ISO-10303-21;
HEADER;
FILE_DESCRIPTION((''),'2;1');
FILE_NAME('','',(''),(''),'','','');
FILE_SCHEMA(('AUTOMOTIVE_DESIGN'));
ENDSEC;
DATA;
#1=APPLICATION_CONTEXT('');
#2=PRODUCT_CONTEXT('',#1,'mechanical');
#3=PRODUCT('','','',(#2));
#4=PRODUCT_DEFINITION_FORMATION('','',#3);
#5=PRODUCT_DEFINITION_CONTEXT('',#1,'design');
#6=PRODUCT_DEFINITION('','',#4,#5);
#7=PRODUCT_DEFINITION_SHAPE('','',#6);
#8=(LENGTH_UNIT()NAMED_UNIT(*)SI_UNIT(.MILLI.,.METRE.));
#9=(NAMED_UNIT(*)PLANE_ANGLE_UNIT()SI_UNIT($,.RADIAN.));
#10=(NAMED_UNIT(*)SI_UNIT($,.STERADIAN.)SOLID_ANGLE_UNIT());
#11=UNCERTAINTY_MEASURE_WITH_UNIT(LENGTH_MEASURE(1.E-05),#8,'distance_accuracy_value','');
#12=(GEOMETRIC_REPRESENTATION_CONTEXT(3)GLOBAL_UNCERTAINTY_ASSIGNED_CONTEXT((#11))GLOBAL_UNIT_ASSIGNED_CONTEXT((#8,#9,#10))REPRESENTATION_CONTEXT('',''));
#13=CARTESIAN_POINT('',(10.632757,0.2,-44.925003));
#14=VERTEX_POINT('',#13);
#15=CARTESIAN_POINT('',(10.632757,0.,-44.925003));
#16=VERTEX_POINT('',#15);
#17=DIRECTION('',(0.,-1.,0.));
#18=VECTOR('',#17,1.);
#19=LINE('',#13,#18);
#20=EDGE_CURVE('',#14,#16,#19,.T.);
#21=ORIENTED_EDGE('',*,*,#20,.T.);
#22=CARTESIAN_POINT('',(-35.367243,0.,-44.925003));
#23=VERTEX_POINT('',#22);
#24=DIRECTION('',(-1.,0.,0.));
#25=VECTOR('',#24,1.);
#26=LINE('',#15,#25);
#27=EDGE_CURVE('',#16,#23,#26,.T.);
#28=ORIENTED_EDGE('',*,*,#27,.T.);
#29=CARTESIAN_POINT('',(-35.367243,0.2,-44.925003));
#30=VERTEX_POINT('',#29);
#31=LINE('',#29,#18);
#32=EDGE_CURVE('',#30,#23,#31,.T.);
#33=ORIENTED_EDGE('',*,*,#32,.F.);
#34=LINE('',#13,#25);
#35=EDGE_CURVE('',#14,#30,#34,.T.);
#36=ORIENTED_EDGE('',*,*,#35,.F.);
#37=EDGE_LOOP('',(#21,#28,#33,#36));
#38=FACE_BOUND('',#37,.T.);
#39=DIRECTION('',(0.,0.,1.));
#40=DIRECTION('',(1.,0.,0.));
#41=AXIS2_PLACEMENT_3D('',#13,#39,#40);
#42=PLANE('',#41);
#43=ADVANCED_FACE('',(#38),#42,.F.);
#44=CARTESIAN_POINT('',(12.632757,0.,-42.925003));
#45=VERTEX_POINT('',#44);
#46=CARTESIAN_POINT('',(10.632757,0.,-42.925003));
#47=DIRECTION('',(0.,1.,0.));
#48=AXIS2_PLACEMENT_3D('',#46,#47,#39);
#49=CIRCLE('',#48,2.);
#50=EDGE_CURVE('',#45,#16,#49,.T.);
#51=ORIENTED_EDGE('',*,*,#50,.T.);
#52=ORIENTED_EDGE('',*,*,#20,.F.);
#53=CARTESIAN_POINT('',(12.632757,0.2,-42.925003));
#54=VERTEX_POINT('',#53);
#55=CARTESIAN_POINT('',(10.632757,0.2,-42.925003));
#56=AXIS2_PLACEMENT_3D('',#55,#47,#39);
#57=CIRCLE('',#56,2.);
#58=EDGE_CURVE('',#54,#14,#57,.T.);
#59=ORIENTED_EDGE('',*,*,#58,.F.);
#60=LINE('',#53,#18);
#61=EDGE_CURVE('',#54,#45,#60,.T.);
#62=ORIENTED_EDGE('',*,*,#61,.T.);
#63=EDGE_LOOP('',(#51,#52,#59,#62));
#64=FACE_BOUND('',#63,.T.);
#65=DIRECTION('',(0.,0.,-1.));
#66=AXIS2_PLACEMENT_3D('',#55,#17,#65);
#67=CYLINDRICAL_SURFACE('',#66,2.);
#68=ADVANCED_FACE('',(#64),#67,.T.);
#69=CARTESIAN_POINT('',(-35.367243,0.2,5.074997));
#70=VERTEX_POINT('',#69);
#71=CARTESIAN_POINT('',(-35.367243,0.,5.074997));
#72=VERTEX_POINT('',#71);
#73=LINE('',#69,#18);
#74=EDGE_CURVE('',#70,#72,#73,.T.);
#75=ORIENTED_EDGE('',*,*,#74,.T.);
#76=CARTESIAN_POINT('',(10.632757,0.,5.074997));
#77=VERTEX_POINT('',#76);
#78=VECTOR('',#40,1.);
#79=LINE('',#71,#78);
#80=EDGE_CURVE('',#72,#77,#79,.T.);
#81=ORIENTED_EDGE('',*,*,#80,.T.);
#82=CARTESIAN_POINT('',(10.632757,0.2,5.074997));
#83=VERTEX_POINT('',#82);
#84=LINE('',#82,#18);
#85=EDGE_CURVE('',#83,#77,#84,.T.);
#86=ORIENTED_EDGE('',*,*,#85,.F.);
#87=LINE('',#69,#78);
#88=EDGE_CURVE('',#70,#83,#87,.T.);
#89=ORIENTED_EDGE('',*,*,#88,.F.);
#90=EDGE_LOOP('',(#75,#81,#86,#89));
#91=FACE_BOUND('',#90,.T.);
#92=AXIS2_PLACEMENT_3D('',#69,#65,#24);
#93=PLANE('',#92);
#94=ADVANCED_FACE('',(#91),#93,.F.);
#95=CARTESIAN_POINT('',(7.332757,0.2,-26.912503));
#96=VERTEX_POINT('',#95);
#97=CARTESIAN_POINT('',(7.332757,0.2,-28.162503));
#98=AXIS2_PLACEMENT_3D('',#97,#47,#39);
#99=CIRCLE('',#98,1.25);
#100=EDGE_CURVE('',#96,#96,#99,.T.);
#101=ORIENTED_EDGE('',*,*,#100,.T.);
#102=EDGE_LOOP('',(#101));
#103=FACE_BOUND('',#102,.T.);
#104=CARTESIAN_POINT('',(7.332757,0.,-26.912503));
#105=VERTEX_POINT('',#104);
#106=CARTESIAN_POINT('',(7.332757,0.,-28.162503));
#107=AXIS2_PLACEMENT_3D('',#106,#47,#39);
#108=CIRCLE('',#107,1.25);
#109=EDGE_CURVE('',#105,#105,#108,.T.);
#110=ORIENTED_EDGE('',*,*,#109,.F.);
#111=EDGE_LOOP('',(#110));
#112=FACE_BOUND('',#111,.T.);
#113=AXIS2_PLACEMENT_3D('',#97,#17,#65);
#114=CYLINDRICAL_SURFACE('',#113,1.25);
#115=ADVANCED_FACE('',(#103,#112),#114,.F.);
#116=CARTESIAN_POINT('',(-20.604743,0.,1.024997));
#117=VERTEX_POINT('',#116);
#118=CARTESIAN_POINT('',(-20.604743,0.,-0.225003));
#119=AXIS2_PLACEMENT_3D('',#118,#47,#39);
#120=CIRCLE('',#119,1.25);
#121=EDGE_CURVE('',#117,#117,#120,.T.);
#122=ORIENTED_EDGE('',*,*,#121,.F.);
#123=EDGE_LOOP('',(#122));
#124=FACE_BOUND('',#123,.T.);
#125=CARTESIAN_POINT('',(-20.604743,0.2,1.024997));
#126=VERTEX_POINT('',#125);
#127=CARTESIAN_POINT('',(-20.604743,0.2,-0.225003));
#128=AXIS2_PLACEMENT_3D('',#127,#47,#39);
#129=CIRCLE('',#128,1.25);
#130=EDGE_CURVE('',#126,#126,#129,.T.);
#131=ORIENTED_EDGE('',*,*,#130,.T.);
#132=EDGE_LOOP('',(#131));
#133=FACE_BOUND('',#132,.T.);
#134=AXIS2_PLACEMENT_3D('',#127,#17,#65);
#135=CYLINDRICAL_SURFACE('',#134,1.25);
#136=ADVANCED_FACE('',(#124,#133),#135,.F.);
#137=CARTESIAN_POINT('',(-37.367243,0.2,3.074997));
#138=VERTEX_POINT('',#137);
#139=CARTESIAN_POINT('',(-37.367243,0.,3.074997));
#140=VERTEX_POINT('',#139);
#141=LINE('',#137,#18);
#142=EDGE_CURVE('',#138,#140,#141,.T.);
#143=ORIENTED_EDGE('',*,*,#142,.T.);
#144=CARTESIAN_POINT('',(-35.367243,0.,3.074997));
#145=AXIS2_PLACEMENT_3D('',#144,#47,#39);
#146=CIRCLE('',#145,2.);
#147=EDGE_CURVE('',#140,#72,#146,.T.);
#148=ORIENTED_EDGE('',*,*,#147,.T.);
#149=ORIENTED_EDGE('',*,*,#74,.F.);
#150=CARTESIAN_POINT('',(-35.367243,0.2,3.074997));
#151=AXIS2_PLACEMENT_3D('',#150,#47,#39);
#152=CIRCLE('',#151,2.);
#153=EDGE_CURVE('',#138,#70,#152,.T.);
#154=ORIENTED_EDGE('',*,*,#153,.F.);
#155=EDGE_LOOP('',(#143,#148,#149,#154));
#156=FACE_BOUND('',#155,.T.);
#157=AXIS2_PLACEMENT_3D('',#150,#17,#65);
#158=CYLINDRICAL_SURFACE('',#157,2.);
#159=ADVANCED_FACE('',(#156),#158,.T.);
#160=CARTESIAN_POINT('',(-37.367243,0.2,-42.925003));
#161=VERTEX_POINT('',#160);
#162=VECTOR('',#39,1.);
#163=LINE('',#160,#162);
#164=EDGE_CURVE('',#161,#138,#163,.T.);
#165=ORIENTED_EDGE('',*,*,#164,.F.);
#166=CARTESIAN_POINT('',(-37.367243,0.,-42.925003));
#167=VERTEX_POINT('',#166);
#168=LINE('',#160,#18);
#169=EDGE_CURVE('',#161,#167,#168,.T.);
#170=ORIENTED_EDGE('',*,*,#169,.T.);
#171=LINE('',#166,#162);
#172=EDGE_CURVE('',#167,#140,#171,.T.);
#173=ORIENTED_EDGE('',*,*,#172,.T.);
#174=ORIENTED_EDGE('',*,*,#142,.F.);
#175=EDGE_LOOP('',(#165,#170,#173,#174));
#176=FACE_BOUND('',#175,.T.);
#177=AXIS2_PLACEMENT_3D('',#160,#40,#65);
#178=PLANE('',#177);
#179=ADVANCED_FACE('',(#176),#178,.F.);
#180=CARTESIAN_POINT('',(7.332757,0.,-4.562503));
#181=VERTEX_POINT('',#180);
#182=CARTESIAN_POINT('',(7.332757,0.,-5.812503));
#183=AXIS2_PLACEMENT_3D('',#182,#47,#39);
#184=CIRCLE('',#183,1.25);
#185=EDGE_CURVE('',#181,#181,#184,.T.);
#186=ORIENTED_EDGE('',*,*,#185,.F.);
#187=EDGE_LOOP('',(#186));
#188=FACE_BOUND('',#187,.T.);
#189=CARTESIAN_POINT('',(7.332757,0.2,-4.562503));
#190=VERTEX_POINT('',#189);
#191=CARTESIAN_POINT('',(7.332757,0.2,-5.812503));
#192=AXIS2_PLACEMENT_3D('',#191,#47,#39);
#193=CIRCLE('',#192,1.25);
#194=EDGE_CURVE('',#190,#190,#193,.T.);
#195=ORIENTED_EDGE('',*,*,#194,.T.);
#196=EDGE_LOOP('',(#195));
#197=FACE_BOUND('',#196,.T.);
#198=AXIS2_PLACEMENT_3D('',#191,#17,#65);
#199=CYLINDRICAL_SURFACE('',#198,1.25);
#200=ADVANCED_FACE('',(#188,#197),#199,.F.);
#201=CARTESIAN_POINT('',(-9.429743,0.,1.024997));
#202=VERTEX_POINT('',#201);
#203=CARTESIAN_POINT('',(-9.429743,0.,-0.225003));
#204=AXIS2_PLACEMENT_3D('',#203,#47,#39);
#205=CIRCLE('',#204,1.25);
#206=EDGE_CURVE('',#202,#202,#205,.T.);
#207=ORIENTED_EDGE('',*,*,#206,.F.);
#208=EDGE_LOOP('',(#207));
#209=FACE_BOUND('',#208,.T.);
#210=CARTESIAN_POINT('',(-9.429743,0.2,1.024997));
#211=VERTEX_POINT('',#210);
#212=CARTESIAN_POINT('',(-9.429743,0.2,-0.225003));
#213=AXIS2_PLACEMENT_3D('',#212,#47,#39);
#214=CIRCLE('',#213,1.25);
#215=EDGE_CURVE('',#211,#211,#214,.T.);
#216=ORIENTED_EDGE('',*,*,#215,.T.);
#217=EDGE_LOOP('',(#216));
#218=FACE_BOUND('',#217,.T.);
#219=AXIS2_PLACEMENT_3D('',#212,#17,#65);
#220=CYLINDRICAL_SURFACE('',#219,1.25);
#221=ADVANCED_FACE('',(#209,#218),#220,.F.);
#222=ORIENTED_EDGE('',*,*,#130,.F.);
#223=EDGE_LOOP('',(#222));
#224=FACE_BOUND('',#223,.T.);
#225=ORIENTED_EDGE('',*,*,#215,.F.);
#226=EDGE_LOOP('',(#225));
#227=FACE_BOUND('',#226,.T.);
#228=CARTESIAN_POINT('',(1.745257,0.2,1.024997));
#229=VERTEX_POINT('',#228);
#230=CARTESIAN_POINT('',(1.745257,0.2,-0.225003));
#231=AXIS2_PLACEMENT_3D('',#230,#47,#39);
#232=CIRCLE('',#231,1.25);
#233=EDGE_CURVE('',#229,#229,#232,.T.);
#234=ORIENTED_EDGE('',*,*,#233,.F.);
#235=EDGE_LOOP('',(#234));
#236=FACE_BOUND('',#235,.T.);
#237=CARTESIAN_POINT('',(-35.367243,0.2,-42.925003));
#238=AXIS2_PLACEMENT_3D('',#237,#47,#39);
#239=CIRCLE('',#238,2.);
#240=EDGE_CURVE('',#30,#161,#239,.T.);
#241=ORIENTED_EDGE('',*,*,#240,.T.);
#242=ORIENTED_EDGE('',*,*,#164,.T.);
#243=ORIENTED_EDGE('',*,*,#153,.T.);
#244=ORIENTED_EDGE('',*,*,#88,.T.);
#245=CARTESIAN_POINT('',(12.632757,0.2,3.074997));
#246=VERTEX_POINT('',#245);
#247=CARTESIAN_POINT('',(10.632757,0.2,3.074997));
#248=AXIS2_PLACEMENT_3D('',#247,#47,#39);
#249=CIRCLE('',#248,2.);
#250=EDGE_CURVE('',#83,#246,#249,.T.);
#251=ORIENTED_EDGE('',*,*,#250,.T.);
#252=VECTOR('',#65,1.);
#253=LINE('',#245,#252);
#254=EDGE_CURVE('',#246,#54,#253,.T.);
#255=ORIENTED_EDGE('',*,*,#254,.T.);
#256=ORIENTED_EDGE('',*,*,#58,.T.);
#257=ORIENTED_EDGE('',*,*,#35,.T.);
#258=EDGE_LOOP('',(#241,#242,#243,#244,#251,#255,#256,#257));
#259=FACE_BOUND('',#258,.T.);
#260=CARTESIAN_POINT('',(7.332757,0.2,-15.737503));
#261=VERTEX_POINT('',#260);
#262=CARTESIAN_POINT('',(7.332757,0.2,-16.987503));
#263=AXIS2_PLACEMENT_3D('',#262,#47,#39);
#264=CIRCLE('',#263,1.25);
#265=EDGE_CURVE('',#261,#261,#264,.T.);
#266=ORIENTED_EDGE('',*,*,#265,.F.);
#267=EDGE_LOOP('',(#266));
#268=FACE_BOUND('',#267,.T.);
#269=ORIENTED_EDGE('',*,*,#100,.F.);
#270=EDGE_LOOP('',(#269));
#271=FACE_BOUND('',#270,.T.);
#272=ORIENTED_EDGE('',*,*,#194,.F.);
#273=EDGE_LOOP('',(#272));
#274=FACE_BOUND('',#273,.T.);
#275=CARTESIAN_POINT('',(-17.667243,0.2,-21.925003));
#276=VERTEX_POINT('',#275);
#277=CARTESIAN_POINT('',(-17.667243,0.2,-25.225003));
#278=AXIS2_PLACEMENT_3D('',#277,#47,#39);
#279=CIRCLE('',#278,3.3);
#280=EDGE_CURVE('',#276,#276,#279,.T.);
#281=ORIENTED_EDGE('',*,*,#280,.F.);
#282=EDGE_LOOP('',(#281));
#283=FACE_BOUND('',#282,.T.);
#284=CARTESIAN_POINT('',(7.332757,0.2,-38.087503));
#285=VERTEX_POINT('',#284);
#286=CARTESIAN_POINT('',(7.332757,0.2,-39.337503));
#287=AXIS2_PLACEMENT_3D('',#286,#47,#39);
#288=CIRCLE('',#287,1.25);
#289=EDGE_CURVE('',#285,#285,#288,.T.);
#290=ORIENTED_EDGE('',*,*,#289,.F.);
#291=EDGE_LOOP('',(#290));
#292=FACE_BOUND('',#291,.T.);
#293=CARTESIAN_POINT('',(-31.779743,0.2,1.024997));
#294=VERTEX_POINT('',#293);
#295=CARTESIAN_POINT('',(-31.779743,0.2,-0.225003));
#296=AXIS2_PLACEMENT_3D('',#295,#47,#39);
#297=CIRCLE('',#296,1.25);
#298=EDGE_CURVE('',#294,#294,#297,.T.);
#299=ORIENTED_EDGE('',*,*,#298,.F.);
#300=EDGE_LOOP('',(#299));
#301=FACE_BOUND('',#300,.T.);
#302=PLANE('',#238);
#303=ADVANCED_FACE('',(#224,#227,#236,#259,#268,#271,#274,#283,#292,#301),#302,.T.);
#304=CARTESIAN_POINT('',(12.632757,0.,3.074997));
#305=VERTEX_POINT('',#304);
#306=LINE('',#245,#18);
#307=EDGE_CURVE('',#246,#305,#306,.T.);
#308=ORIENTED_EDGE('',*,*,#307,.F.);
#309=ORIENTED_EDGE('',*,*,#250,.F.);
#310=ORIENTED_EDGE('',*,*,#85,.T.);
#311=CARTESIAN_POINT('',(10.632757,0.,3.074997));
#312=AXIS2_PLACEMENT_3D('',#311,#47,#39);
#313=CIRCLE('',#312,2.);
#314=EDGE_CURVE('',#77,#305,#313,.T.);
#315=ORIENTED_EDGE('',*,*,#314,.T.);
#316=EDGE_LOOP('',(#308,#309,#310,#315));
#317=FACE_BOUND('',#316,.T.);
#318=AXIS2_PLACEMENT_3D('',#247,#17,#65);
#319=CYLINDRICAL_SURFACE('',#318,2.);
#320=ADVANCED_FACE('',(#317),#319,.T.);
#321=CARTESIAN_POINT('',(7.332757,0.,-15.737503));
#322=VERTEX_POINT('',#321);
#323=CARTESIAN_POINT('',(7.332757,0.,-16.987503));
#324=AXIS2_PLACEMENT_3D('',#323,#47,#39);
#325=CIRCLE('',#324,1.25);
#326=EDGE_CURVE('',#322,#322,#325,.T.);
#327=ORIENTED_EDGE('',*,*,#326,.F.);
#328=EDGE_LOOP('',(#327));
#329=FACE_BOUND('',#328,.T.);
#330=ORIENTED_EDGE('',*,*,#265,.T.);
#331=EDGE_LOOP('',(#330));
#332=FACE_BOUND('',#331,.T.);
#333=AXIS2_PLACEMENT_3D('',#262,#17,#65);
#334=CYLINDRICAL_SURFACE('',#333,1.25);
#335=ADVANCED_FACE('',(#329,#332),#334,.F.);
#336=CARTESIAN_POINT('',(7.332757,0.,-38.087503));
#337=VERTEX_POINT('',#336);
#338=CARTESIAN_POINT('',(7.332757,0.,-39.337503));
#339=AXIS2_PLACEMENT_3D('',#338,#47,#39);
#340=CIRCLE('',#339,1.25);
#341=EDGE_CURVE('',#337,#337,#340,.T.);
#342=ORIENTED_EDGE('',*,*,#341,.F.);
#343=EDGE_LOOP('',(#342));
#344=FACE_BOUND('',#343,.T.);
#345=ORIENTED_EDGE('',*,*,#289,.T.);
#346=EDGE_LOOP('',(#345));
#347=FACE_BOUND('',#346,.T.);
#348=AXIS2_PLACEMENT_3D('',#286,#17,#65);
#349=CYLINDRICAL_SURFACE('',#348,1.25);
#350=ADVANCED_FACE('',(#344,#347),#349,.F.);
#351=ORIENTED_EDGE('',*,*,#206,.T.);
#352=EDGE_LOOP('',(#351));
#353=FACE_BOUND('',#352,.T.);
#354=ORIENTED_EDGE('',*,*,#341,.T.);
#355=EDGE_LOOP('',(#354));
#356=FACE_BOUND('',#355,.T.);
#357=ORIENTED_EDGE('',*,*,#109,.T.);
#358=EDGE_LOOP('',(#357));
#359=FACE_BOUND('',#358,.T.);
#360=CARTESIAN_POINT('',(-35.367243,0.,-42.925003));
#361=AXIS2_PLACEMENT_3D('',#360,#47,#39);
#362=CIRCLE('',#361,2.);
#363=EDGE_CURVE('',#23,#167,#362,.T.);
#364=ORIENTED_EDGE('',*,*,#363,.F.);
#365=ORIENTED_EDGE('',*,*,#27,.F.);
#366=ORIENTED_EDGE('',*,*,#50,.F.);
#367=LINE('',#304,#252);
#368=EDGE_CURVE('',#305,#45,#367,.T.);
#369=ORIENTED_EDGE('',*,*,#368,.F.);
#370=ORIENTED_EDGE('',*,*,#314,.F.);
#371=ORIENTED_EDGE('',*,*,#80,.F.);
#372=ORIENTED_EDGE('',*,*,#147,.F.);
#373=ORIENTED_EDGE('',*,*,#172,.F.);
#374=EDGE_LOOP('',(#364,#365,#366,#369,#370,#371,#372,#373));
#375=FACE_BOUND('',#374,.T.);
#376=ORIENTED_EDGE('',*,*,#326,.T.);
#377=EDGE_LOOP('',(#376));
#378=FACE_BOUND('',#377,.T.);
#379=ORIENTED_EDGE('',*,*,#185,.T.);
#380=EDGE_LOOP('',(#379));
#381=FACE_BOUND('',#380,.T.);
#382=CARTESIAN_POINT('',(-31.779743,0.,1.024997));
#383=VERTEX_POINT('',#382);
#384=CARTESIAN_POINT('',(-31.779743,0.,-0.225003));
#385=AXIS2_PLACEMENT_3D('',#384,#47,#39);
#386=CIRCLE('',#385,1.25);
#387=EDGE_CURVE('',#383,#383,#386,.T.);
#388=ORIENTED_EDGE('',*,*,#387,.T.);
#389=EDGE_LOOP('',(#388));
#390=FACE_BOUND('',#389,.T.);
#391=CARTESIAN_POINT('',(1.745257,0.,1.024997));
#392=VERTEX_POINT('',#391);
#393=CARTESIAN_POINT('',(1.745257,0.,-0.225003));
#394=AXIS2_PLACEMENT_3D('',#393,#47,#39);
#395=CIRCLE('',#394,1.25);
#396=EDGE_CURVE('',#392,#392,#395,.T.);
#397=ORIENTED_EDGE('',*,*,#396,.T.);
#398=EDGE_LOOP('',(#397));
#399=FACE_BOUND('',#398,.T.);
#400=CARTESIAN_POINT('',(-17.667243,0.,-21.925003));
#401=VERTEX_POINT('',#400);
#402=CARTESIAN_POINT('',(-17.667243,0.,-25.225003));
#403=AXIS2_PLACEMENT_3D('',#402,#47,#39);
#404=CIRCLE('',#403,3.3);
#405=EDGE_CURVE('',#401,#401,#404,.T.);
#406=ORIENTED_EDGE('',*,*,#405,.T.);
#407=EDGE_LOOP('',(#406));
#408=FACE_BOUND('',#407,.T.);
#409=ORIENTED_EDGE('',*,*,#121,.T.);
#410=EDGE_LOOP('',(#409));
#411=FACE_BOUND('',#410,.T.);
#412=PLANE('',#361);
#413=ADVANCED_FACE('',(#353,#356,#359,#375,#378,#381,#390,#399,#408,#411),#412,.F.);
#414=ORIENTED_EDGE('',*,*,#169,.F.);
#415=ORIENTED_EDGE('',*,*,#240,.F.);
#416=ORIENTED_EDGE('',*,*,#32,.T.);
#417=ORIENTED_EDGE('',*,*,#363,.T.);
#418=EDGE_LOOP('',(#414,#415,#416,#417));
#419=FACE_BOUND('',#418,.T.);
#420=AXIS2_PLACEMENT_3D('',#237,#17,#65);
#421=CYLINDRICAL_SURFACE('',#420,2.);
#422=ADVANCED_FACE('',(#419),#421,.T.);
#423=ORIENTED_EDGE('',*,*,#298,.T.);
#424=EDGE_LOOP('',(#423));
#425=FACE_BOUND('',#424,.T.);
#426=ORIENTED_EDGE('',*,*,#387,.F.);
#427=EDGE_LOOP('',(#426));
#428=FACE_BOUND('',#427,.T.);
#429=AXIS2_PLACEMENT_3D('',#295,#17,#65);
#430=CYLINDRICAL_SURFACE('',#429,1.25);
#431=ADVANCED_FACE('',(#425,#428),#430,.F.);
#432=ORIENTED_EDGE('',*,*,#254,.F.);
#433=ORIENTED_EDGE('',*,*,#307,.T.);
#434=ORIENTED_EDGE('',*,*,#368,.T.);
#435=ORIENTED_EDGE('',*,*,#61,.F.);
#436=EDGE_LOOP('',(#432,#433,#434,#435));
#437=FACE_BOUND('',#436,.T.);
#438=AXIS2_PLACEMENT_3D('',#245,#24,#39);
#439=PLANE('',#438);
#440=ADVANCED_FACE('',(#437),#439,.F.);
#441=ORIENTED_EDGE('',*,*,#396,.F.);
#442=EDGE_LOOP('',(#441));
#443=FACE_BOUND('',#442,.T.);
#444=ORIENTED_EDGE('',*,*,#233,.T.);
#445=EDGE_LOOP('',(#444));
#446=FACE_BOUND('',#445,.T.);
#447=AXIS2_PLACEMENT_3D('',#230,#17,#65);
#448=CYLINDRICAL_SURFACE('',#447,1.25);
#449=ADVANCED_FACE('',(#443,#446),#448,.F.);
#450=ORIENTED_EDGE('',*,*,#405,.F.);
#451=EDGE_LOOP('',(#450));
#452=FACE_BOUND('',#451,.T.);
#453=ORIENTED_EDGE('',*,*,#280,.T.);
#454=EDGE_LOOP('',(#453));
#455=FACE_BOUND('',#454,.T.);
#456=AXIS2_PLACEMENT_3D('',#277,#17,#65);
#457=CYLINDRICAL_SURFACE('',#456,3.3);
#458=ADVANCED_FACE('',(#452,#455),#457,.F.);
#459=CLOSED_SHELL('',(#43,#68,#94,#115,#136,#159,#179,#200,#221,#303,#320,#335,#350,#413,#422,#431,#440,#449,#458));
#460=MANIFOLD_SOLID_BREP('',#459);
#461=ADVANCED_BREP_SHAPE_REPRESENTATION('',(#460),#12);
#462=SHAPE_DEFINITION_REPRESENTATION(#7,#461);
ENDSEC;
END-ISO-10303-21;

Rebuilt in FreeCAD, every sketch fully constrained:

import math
import FreeCAD as App
import Part
import Sketcher
Q = App.Units.Quantity

doc = App.newDocument("Part")
body = doc.addObject("PartDesign::Body", "Body")

# Sketch on XZ plane
sketch1 = doc.addObject("Sketcher::SketchObject", "Sketch")
body.addObject(sketch1)
sketch1.AttachmentSupport = (doc.XZ_Plane, [""])
sketch1.MapMode = "FlatFace"
sketch1.addGeometry([
    Part.LineSegment(App.Vector(-37.367243, -42.925003, 0), App.Vector(-37.367243, 3.074997, 0)),  # 0
    Part.ArcOfCircle(Part.Circle(App.Vector(-35.367243, 3.074997, 0), App.Vector(0, 0, 1), 2), math.radians(90), math.radians(180)),  # 1
    Part.LineSegment(App.Vector(-35.367243, 5.074997, 0), App.Vector(10.632757, 5.074997, 0)),  # 2
    Part.ArcOfCircle(Part.Circle(App.Vector(10.632757, 3.074997, 0), App.Vector(0, 0, 1), 2), math.radians(0), math.radians(90)),  # 3
    Part.LineSegment(App.Vector(12.632757, 3.074997, 0), App.Vector(12.632757, -42.925003, 0)),  # 4
    Part.ArcOfCircle(Part.Circle(App.Vector(10.632757, -42.925003, 0), App.Vector(0, 0, 1), 2), math.radians(-90), math.radians(0)),  # 5
    Part.LineSegment(App.Vector(10.632757, -44.925003, 0), App.Vector(-35.367243, -44.925003, 0)),  # 6
    Part.ArcOfCircle(Part.Circle(App.Vector(-35.367243, -42.925003, 0), App.Vector(0, 0, 1), 2), math.radians(180), math.radians(270)),  # 7
    Part.Circle(App.Vector(-31.779743, -0.225003, 0), App.Vector(0, 0, 1), 1.25),  # 8
    Part.Circle(App.Vector(-20.604743, -0.225003, 0), App.Vector(0, 0, 1), 1.25),  # 9
    Part.Circle(App.Vector(-9.429743, -0.225003, 0), App.Vector(0, 0, 1), 1.25),  # 10
    Part.Circle(App.Vector(1.745257, -0.225003, 0), App.Vector(0, 0, 1), 1.25),  # 11
    Part.Circle(App.Vector(7.332757, -5.812503, 0), App.Vector(0, 0, 1), 1.25),  # 12
    Part.Circle(App.Vector(7.332757, -16.987503, 0), App.Vector(0, 0, 1), 1.25),  # 13
    Part.Circle(App.Vector(-17.667243, -25.225003, 0), App.Vector(0, 0, 1), 3.3),  # 14
    Part.Circle(App.Vector(7.332757, -28.162503, 0), App.Vector(0, 0, 1), 1.25),  # 15
    Part.Circle(App.Vector(7.332757, -39.337503, 0), App.Vector(0, 0, 1), 1.25),  # 16
], False)
sketch1.addConstraint([
    Sketcher.Constraint("Tangent", 0, 2, 1, 2),
    Sketcher.Constraint("Tangent", 1, 1, 2, 1),
    Sketcher.Constraint("Tangent", 2, 2, 3, 2),
    Sketcher.Constraint("Tangent", 3, 1, 4, 1),
    Sketcher.Constraint("Tangent", 4, 2, 5, 2),
    Sketcher.Constraint("Tangent", 5, 1, 6, 1),
    Sketcher.Constraint("Tangent", 6, 2, 7, 2),
    Sketcher.Constraint("Tangent", 7, 1, 0, 1),
    Sketcher.Constraint("Vertical", 0),
    Sketcher.Constraint("Horizontal", 2),
    Sketcher.Constraint("Vertical", 4),
    Sketcher.Constraint("Horizontal", 6),
    Sketcher.Constraint("Equal", 1, 3),
    Sketcher.Constraint("Equal", 3, 5),
    Sketcher.Constraint("Equal", 5, 7),
    Sketcher.Constraint("Equal", 8, 9),
    Sketcher.Constraint("Equal", 9, 10),
    Sketcher.Constraint("Equal", 10, 11),
    Sketcher.Constraint("Equal", 11, 12),
    Sketcher.Constraint("Equal", 12, 13),
    Sketcher.Constraint("Equal", 13, 15),
    Sketcher.Constraint("Equal", 15, 16),
    Sketcher.Constraint("Horizontal", 8, 3, 9, 3),
    Sketcher.Constraint("Horizontal", 9, 3, 10, 3),
    Sketcher.Constraint("Horizontal", 10, 3, 11, 3),
    Sketcher.Constraint("Vertical", 12, 3, 13, 3),
    Sketcher.Constraint("Vertical", 13, 3, 15, 3),
    Sketcher.Constraint("Vertical", 15, 3, 16, 3),
    Sketcher.Constraint("Equal", 6, 0),
    Sketcher.Constraint("Radius", 1, Q("2 mm")),
    Sketcher.Constraint("Diameter", 8, Q("2.5 mm")),
    Sketcher.Constraint("Diameter", 14, Q("6.6 mm")),
    Sketcher.Constraint("DistanceX", 2, 1, 2, 2, Q("46 mm")),
    Sketcher.Constraint("DistanceY", 14, 3, 9, 3, Q("25 mm")),
    Sketcher.Constraint("DistanceX", 14, 3, 13, 3, Q("25 mm")),
    Sketcher.Constraint("DistanceY", 8, 3, 1, 3, Q("3.3 mm")),
    Sketcher.Constraint("DistanceX", 12, 3, 3, 3, Q("3.3 mm")),
    Sketcher.Constraint("DistanceX", 8, 3, 10, 3, Q("22.35 mm")),
    Sketcher.Constraint("DistanceX", 9, 3, 11, 3, Q("22.35 mm")),
    Sketcher.Constraint("DistanceY", 15, 3, 12, 3, Q("22.35 mm")),
    Sketcher.Constraint("DistanceY", 16, 3, 13, 3, Q("22.35 mm")),
    Sketcher.Constraint("DistanceX", 8, 3, 9, 3, Q("11.175 mm")),
    Sketcher.Constraint("DistanceY", 13, 3, 12, 3, Q("11.175 mm")),
    Sketcher.Constraint("DistanceX", 1, 3, 8, 3, Q("3.5875 mm")),
    Sketcher.Constraint("DistanceY", 12, 3, 11, 3, Q("5.5875 mm")),
    Sketcher.Constraint("DistanceX", 1, 3, -1, 1, Q("35.367243 mm")),
    Sketcher.Constraint("DistanceY", -1, 1, 1, 3, Q("3.074997 mm")),
])
pad1 = doc.addObject("PartDesign::Pad", "Pad")
body.addObject(pad1)
pad1.Profile = sketch1
pad1.Length = 0.2
pad1.Reversed = True

doc.recompute()
